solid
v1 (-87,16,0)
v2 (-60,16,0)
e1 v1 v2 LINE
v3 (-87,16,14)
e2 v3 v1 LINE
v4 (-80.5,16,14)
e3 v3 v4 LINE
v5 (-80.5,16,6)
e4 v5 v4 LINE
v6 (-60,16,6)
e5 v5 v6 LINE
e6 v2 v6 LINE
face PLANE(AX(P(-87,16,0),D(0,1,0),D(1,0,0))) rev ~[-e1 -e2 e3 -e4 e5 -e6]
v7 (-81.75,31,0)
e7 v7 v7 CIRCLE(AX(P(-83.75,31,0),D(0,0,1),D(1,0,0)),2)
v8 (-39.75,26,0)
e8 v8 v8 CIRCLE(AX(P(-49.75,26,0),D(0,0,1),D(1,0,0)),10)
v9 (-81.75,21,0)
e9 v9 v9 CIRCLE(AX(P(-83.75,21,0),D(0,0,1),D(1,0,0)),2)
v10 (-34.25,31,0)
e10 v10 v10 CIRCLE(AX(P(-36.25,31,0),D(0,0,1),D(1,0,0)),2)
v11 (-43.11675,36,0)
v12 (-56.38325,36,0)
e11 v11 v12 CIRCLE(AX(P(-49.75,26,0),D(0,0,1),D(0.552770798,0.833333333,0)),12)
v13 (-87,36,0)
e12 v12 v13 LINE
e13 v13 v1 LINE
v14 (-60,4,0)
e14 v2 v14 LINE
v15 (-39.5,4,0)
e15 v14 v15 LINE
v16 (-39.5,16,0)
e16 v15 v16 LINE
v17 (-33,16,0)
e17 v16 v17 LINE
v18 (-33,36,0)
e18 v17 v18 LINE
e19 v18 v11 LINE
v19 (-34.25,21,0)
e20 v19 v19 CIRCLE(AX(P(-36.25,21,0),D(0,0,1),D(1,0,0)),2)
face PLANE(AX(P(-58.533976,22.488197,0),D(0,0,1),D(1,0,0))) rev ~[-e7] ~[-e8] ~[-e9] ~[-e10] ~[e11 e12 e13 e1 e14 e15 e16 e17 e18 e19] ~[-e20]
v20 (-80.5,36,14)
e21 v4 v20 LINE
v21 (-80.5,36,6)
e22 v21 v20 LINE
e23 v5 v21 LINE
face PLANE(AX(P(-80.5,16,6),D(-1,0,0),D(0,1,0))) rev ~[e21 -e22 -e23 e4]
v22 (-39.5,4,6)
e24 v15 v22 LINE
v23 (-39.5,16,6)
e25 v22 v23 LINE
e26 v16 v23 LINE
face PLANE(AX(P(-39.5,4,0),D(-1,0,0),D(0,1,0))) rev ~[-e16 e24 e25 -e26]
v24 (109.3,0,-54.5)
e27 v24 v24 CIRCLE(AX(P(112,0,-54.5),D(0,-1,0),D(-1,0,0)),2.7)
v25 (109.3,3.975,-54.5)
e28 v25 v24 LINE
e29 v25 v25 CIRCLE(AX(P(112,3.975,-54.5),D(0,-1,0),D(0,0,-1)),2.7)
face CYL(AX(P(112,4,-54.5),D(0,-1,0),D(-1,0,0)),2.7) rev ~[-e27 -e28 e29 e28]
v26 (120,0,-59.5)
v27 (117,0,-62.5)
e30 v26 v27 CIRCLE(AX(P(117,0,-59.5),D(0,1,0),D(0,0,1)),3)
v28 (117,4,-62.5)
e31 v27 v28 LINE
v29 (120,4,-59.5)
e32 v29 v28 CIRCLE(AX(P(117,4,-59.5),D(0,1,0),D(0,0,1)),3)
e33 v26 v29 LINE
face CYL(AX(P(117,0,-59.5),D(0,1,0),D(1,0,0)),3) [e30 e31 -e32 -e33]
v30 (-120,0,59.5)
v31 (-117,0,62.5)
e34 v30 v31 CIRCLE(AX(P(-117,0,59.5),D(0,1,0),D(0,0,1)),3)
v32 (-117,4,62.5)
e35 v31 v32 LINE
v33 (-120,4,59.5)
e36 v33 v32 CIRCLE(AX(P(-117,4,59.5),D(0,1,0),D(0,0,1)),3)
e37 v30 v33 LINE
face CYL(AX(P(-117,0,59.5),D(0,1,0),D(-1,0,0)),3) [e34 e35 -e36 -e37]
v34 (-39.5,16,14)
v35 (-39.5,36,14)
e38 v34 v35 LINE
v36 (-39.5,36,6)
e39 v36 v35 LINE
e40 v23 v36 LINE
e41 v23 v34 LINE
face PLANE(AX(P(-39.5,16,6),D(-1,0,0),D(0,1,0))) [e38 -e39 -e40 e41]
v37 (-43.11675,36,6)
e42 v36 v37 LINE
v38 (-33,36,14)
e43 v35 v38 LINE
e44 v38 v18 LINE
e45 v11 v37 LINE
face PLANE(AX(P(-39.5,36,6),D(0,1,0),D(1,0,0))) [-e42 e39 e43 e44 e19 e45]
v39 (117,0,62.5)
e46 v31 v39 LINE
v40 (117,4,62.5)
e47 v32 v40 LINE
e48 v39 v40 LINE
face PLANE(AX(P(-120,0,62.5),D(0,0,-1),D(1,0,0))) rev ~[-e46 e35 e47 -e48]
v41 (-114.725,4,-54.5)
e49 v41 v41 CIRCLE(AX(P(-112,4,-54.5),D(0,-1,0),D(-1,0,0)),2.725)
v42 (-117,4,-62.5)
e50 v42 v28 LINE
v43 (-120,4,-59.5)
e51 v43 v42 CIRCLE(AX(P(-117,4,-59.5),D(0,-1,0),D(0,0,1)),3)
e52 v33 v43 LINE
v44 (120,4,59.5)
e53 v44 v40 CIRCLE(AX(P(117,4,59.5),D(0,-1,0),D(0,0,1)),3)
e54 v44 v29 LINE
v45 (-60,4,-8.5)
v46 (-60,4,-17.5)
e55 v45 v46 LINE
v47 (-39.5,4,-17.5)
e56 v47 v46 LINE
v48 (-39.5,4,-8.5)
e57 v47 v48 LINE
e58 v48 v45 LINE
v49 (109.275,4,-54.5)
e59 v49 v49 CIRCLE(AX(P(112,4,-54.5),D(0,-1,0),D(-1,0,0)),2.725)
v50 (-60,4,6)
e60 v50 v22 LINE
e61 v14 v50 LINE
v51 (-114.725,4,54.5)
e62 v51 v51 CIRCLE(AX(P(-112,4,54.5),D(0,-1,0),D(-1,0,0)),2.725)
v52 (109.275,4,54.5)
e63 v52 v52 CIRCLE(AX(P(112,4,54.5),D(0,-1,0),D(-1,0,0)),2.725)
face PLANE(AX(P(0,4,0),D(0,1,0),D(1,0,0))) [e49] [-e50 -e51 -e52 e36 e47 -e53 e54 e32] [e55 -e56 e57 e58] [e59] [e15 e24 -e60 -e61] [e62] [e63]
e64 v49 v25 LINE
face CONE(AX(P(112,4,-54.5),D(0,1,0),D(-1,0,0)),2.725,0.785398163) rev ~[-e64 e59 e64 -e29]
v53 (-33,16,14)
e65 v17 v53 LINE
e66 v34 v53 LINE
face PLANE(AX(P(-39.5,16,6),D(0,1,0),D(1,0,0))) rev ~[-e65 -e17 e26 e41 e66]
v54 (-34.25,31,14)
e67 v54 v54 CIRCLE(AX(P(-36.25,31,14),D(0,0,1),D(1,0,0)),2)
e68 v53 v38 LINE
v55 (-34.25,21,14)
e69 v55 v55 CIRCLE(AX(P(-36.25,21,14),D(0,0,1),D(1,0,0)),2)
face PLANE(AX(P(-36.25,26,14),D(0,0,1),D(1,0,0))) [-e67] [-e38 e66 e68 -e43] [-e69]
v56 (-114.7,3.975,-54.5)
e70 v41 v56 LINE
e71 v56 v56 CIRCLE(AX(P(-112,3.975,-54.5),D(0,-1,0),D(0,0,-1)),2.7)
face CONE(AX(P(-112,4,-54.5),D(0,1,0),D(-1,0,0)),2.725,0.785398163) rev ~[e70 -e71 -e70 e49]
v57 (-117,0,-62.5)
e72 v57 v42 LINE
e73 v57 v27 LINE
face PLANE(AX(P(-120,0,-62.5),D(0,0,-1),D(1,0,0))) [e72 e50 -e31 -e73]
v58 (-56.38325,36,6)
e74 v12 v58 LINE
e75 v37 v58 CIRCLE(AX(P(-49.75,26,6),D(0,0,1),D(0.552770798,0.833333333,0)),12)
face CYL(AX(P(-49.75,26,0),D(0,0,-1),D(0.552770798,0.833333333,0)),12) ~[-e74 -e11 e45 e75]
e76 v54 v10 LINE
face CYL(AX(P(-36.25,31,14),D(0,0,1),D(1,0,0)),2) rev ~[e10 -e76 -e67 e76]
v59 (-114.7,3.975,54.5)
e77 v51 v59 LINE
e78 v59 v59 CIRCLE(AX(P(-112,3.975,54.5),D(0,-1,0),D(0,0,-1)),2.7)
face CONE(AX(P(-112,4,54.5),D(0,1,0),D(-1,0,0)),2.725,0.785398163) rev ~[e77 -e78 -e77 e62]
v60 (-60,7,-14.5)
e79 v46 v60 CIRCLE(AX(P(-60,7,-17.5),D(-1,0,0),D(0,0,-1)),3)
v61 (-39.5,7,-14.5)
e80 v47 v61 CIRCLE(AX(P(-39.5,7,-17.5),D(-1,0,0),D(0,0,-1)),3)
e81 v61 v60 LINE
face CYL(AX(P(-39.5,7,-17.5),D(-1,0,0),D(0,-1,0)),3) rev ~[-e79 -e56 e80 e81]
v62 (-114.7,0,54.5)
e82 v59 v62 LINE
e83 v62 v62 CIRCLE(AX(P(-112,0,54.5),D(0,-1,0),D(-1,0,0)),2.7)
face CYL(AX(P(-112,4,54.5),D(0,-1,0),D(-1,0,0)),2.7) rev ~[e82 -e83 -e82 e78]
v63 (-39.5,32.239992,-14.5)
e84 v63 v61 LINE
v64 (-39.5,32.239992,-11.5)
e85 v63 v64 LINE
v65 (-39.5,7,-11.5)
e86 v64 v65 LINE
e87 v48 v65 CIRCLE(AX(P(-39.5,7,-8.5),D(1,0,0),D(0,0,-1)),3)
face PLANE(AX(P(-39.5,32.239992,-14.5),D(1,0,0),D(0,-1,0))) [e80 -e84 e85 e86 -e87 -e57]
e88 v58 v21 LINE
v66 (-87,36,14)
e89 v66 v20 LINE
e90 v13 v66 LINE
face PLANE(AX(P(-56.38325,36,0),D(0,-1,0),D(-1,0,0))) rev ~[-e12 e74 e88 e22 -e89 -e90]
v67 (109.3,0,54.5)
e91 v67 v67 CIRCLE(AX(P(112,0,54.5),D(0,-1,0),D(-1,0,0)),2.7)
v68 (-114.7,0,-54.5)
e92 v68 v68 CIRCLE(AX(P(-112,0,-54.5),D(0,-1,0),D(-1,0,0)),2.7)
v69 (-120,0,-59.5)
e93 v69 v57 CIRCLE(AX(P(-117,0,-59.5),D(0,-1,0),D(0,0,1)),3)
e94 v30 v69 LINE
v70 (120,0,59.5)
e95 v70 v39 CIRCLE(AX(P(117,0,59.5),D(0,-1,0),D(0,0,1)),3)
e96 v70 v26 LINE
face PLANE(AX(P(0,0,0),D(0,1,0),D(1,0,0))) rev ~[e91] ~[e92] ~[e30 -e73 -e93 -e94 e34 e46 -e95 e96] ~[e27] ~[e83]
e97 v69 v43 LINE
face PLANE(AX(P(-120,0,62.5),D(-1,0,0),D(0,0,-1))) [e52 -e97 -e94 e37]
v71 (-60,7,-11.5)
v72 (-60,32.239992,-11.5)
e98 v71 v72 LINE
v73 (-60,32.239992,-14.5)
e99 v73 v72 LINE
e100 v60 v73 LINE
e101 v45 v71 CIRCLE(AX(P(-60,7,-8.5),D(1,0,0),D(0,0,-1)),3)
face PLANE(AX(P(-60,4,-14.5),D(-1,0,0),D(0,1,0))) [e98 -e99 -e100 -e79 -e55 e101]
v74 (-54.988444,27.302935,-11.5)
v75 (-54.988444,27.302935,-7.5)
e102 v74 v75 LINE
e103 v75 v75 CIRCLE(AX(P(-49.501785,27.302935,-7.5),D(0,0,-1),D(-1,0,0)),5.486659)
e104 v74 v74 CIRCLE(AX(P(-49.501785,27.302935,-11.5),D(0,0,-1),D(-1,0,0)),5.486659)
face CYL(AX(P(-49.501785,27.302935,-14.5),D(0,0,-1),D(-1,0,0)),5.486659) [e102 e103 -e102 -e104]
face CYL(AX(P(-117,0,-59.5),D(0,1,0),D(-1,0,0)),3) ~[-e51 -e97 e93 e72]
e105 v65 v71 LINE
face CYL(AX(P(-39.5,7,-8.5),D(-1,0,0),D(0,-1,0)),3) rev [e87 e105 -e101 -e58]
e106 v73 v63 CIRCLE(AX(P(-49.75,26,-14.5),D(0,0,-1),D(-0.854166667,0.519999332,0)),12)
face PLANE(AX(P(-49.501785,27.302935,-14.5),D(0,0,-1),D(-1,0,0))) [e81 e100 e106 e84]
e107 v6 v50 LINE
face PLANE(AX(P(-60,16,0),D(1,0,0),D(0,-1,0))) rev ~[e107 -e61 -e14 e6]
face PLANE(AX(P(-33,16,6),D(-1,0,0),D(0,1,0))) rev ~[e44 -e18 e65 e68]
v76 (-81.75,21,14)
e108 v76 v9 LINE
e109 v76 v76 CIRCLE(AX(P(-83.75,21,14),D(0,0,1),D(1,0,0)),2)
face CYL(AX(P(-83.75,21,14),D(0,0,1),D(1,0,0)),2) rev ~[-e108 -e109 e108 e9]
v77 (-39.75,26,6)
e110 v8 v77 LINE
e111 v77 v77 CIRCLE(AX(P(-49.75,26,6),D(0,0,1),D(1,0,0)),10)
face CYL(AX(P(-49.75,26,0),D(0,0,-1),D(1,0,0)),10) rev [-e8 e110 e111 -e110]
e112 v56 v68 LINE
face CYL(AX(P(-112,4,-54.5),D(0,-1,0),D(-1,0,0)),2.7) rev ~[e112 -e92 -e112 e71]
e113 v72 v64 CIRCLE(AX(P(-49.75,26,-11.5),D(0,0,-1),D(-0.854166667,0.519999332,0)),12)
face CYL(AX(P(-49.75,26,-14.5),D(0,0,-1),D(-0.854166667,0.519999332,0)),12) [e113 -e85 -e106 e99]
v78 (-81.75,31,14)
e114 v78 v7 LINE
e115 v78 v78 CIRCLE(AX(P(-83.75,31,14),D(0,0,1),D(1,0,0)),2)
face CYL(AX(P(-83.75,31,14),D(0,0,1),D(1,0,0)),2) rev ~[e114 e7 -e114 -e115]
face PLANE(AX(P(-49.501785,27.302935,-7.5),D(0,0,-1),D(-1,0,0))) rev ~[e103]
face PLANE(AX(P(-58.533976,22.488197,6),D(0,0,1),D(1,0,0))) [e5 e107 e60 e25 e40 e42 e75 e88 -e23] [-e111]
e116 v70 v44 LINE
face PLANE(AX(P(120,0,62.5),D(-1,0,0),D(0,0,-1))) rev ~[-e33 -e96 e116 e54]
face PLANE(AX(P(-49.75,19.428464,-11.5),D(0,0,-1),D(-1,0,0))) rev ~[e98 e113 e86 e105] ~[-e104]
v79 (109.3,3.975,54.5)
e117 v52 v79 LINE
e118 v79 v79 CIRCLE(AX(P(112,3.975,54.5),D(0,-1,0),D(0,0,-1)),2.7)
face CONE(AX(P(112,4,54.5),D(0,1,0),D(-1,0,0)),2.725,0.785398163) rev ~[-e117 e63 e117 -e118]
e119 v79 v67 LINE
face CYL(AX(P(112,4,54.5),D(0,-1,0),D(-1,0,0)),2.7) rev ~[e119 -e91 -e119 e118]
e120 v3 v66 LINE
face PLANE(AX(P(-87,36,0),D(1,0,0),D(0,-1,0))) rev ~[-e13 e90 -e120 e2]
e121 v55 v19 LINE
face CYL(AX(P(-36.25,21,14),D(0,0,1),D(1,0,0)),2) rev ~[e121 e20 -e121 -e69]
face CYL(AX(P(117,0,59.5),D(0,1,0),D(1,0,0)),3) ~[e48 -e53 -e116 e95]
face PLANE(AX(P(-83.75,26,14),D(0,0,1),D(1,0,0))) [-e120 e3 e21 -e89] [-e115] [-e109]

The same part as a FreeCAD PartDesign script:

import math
import FreeCAD as App
import Part
import Sketcher


def edges_at(feature, points):
    """Names of the edges that pass closest to the given points."""
    edges = feature.Shape.Edges
    near = lambda p: min(range(len(edges)), key=lambda i: edges[i].distToShape(Part.Vertex(*p))[0])
    return sorted({f"Edge{near(p) + 1}" for p in points})

doc = App.newDocument("Part")
body = doc.addObject("PartDesign::Body", "Body")

sketch1 = body.newObject("Sketcher::SketchObject", "Sketch")
sketch1.AttachmentSupport = (doc.getObject("XZ_Plane"), [""])
sketch1.MapMode = "FlatFace"
sketch1.addGeometry([
    Part.LineSegment(App.Vector(-120, -62, 0), App.Vector(-120, 62, 0)),
    Part.LineSegment(App.Vector(-120, 62, 0), App.Vector(120, 62, 0)),
    Part.LineSegment(App.Vector(120, 62, 0), App.Vector(120, -62, 0)),
    Part.LineSegment(App.Vector(120, -62, 0), App.Vector(-120, -62, 0)),
], False)
sketch1.addConstraint([
    Sketcher.Constraint("Coincident", 0, 2, 1, 1),
    Sketcher.Constraint("Coincident", 1, 2, 2, 1),
    Sketcher.Constraint("Coincident", 2, 2, 3, 1),
    Sketcher.Constraint("Coincident", 3, 2, 0, 1),
    Sketcher.Constraint("Vertical", 0),
    Sketcher.Constraint("Horizontal", 1),
    Sketcher.Constraint("Vertical", 2),
    Sketcher.Constraint("Horizontal", 3),
    Sketcher.Constraint("Symmetric", 0, 2, 2, 2, -1, 1),
    Sketcher.Constraint("DistanceX", 1, 1, 1, 2, 240.0),
    Sketcher.Constraint("DistanceY", 0, 1, 0, 2, 125.0),
])
pad1 = body.newObject("PartDesign::Pad", "Pad")
pad1.Profile = sketch1
pad1.Length = 4
pad1.Reversed = True

sketch2 = body.newObject("Sketcher::SketchObject", "Sketch001")
sketch2.AttachmentSupport = (doc.getObject("XZ_Plane"), [""])
sketch2.MapMode = "FlatFace"
sketch2.AttachmentOffset = App.Placement(App.Vector(0, 0, -4), App.Rotation())
sketch2.addGeometry([
    Part.Circle(App.Vector(112, -54.5, 0), App.Vector(0, 0, 1), 2.7),
    Part.Circle(App.Vector(-112, -54.5, 0), App.Vector(0, 0, 1), 2.7),
    Part.Circle(App.Vector(-112, 54.5, 0), App.Vector(0, 0, 1), 2.7),
    Part.Circle(App.Vector(112, 54.5, 0), App.Vector(0, 0, 1), 2.7),
], False)
sketch2.addConstraint([
    Sketcher.Constraint("Equal", 0, 1),
    Sketcher.Constraint("Equal", 1, 2),
    Sketcher.Constraint("Equal", 2, 3),
    Sketcher.Constraint("Symmetric", 0, 3, 2, 3, -1, 1),
    Sketcher.Constraint("Symmetric", 1, 3, 3, 3, -1, 1),
    Sketcher.Constraint("Symmetric", 0, 3, 1, 3, -2),
    Sketcher.Constraint("Diameter", 0, 5.4),
    Sketcher.Constraint("DistanceX", -1, 1, 0, 3, 112.0),
    Sketcher.Constraint("DistanceY", 1, 3, 2, 3, 109.0),
])
doc.recompute()
hole = body.newObject("PartDesign::Hole", "Hole")
hole.Profile = sketch2
hole.ThreadType = "None"
hole.Diameter = 5.4
hole.DepthType = "ThroughAll"
hole.HoleCutType = "Countersink"
hole.HoleCutDiameter = 5.45
hole.HoleCutCountersinkAngle = 90
hole.Reversed = True
doc.recompute()

fillet = body.newObject("PartDesign::Fillet", "Fillet")
fillet.Base = (hole, edges_at(hole, [
    (120, 2, 62.5),
    (-120, 2, 62.5),
    (-120, 2, -62.5),
    (120, 2, -62.5),
]))
fillet.Radius = 3

sketch3 = body.newObject("Sketcher::SketchObject", "Sketch002")
sketch3.AttachmentSupport = (doc.getObject("XY_Plane"), [""])
sketch3.MapMode = "FlatFace"
sketch3.addGeometry([
    Part.LineSegment(App.Vector(-60, 4, 0), App.Vector(-40, 4, 0)),
    Part.LineSegment(App.Vector(-40, 4, 0), App.Vector(-40, 16, 0)),
    Part.LineSegment(App.Vector(-40, 16, 0), App.Vector(-33, 16, 0)),
    Part.LineSegment(App.Vector(-33, 16, 0), App.Vector(-33, 36, 0)),
    Part.LineSegment(App.Vector(-33, 36, 0), App.Vector(-43, 36, 0)),
    Part.ArcOfCircle(Part.Circle(App.Vector(-50, 26, 0), App.Vector(0, 0, 1), 12), math.radians(56), math.radians(124)),
    Part.LineSegment(App.Vector(-56, 36, 0), App.Vector(-87, 36, 0)),
    Part.LineSegment(App.Vector(-87, 36, 0), App.Vector(-87, 16, 0)),
    Part.LineSegment(App.Vector(-87, 16, 0), App.Vector(-60, 16, 0)),
    Part.LineSegment(App.Vector(-60, 16, 0), App.Vector(-60, 4, 0)),
    Part.Circle(App.Vector(-50, 26, 0), App.Vector(0, 0, 1), 10),
], False)
sketch3.addConstraint([
    Sketcher.Constraint("Coincident", 0, 2, 1, 1),
    Sketcher.Constraint("Coincident", 1, 2, 2, 1),
    Sketcher.Constraint("Coincident", 2, 2, 3, 1),
    Sketcher.Constraint("Coincident", 3, 2, 4, 1),
    Sketcher.Constraint("Coincident", 4, 2, 5, 1),
    Sketcher.Constraint("Coincident", 5, 2, 6, 1),
    Sketcher.Constraint("Coincident", 6, 2, 7, 1),
    Sketcher.Constraint("Coincident", 7, 2, 8, 1),
    Sketcher.Constraint("Coincident", 8, 2, 9, 1),
    Sketcher.Constraint("Coincident", 9, 2, 0, 1),
    Sketcher.Constraint("Horizontal", 0),
    Sketcher.Constraint("Vertical", 1),
    Sketcher.Constraint("Horizontal", 2),
    Sketcher.Constraint("Vertical", 3),
    Sketcher.Constraint("Horizontal", 4),
    Sketcher.Constraint("Horizontal", 6),
    Sketcher.Constraint("Vertical", 7),
    Sketcher.Constraint("Horizontal", 8),
    Sketcher.Constraint("Vertical", 9),
    Sketcher.Constraint("Coincident", 10, 3, 5, 3),
    Sketcher.Constraint("Horizontal", 4, 2, 5, 2),
    Sketcher.Constraint("Horizontal", 2, 2, 7, 2),
    Sketcher.Constraint("Diameter", 10, 20.0),
    Sketcher.Constraint("Radius", 5, 12.0),
    Sketcher.Constraint("DistanceX", 8, 1, 8, 2, 27.0),
    Sketcher.Constraint("DistanceY", 1, 1, 1, 2, 12.0),
    Sketcher.Constraint("DistanceY", 3, 1, 3, 2, 20.0),
    Sketcher.Constraint("DistanceX", 0, 1, 0, 2, 20.5),
    Sketcher.Constraint("DistanceX", 2, 1, 2, 2, 6.5),
    Sketcher.Constraint("DistanceY", -1, 1, 5, 3, 26.0),
    Sketcher.Constraint("DistanceY", -1, 1, 0, 2, 4.0),
    Sketcher.Constraint("DistanceX", 2, 2, -1, 1, 33.0),
    Sketcher.Constraint("DistanceX", 5, 3, -1, 1, 49.75),
])
pad2 = body.newObject("PartDesign::Pad", "Pad001")
pad2.Profile = sketch3
pad2.Length = 6

sketch4 = body.newObject("Sketcher::SketchObject", "Sketch003")
sketch4.AttachmentSupport = (doc.getObject("XY_Plane"), [""])
sketch4.MapMode = "FlatFace"
sketch4.AttachmentOffset = App.Placement(App.Vector(0, 0, -14.5), App.Rotation())
sketch4.addGeometry([
    Part.LineSegment(App.Vector(-40, 4, 0), App.Vector(-60, 4, 0)),
    Part.LineSegment(App.Vector(-60, 4, 0), App.Vector(-60, 32, 0)),
    Part.ArcOfCircle(Part.Circle(App.Vector(-50, 26, 0), App.Vector(0, 0, 1), 12), math.radians(31), math.radians(149)),
    Part.LineSegment(App.Vector(-40, 32, 0), App.Vector(-40, 4, 0)),
], False)
sketch4.addConstraint([
    Sketcher.Constraint("Coincident", 0, 2, 1, 1),
    Sketcher.Constraint("Coincident", 1, 2, 2, 2),
    Sketcher.Constraint("Coincident", 2, 1, 3, 1),
    Sketcher.Constraint("Coincident", 3, 2, 0, 1),
    Sketcher.Constraint("Horizontal", 0),
    Sketcher.Constraint("Vertical", 1),
    Sketcher.Constraint("Vertical", 3),
    Sketcher.Constraint("Horizontal", 1, 2, 2, 1),
    Sketcher.Constraint("Radius", 2, 12.0),
    Sketcher.Constraint("DistanceX", 0, 2, 0, 1, 20.5),
    Sketcher.Constraint("DistanceY", -1, 1, 2, 3, 26.0),
    Sketcher.Constraint("DistanceX", 0, 2, -1, 1, 60.0),
    Sketcher.Constraint("DistanceY", -1, 1, 0, 2, 4.0),
])
pad3 = body.newObject("PartDesign::Pad", "Pad002")
pad3.Profile = sketch4
pad3.Length = 3
doc.recompute()

fillet2 = body.newObject("PartDesign::Fillet", "Fillet001")
fillet2.Base = (pad3, edges_at(pad3, [(-49.75, 4, -11.5), (-49.75, 4, -14.5)]))
fillet2.Radius = 3

sketch5 = body.newObject("Sketcher::SketchObject", "Sketch004")
sketch5.AttachmentSupport = (doc.getObject("XY_Plane"), [""])
sketch5.MapMode = "FlatFace"
sketch5.AttachmentOffset = App.Placement(App.Vector(0, 0, 6), App.Rotation())
sketch5.addGeometry([
    Part.LineSegment(App.Vector(-40, 36, 0), App.Vector(-40, 16, 0)),
    Part.LineSegment(App.Vector(-40, 16, 0), App.Vector(-33, 16, 0)),
    Part.LineSegment(App.Vector(-33, 16, 0), App.Vector(-33, 36, 0)),
    Part.LineSegment(App.Vector(-33, 36, 0), App.Vector(-40, 36, 0)),
    Part.LineSegment(App.Vector(-87, 36, 0), App.Vector(-87, 16, 0)),
    Part.LineSegment(App.Vector(-87, 16, 0), App.Vector(-80, 16, 0)),
    Part.LineSegment(App.Vector(-80, 16, 0), App.Vector(-80, 36, 0)),
    Part.LineSegment(App.Vector(-80, 36, 0), App.Vector(-87, 36, 0)),
], False)
sketch5.addConstraint([
    Sketcher.Constraint("Coincident", 0, 2, 1, 1),
    Sketcher.Constraint("Coincident", 1, 2, 2, 1),
    Sketcher.Constraint("Coincident", 2, 2, 3, 1),
    Sketcher.Constraint("Coincident", 3, 2, 0, 1),
    Sketcher.Constraint("Coincident", 4, 2, 5, 1),
    Sketcher.Constraint("Coincident", 5, 2, 6, 1),
    Sketcher.Constraint("Coincident", 6, 2, 7, 1),
    Sketcher.Constraint("Coincident", 7, 2, 4, 1),
    Sketcher.Constraint("Vertical", 0),
    Sketcher.Constraint("Horizontal", 1),
    Sketcher.Constraint("Vertical", 2),
    Sketcher.Constraint("Horizontal", 3),
    Sketcher.Constraint("Vertical", 4),
    Sketcher.Constraint("Horizontal", 5),
    Sketcher.Constraint("Vertical", 6),
    Sketcher.Constraint("Horizontal", 7),
    Sketcher.Constraint("Horizontal", 1, 2, 4, 2),
    Sketcher.Constraint("Horizontal", 3, 2, 6, 2),
    Sketcher.Constraint("Equal", 3, 5),
    Sketcher.Constraint("DistanceY", 0, 2, 0, 1, 20.0),
    Sketcher.Constraint("DistanceX", 1, 1, 1, 2, 6.5),
    Sketcher.Constraint("DistanceY", -1, 1, 0, 2, 16.0),
    Sketcher.Constraint("DistanceX", 1, 2, -1, 1, 33.0),
    Sketcher.Constraint("DistanceX", 4, 2, -1, 1, 87.0),
])
pad4 = body.newObject("PartDesign::Pad", "Pad003")
pad4.Profile = sketch5
pad4.Length = 8

sketch6 = body.newObject("Sketcher::SketchObject", "Sketch005")
sketch6.AttachmentSupport = (doc.getObject("XY_Plane"), [""])
sketch6.MapMode = "FlatFace"
sketch6.AttachmentOffset = App.Placement(App.Vector(0, 0, 14), App.Rotation())
sketch6.addGeometry([
    Part.Circle(App.Vector(-83.8, 31, 0), App.Vector(0, 0, 1), 2),
    Part.Circle(App.Vector(-83.8, 21, 0), App.Vector(0, 0, 1), 2),
    Part.Circle(App.Vector(-36.2, 21, 0), App.Vector(0, 0, 1), 2),
    Part.Circle(App.Vector(-36.2, 31, 0), App.Vector(0, 0, 1), 2),
], False)
sketch6.addConstraint([
    Sketcher.Constraint("Equal", 0, 1),
    Sketcher.Constraint("Equal", 1, 2),
    Sketcher.Constraint("Equal", 2, 3),
    Sketcher.Constraint("Horizontal", 1, 3, 2, 3),
    Sketcher.Constraint("Horizontal", 0, 3, 3, 3),
    Sketcher.Constraint("Vertical", 0, 3, 1, 3),
    Sketcher.Constraint("Vertical", 2, 3, 3, 3),
    Sketcher.Constraint("Diameter", 0, 4.0),
    Sketcher.Constraint("DistanceY", -1, 1, 0, 3, 31.0),
    Sketcher.Constraint("DistanceY", -1, 1, 1, 3, 21.0),
    Sketcher.Constraint("DistanceX", 1, 3, 2, 3, 47.5),
    Sketcher.Constraint("DistanceX", 0, 3, -1, 1, 83.75),
])
pocket1 = body.newObject("PartDesign::Pocket", "Pocket")
pocket1.Profile = sketch6
pocket1.Type = "ThroughAll"

sketch7 = body.newObject("Sketcher::SketchObject", "Sketch006")
sketch7.AttachmentSupport = (doc.getObject("XY_Plane"), [""])
sketch7.MapMode = "FlatFace"
sketch7.AttachmentOffset = App.Placement(App.Vector(0, 0, -14.5), App.Rotation())
sketch7.addGeometry(Part.Circle(App.Vector(-50, 27, 0), App.Vector(0, 0, 1), 5), False)
sketch7.addConstraint([
    Sketcher.Constraint("Diameter", 0, 10.973318),
    Sketcher.Constraint("DistanceX", 0, 3, -1, 1, 49.501785),
    Sketcher.Constraint("DistanceY", -1, 1, 0, 3, 27.302935),
])
pad5 = body.newObject("PartDesign::Pad", "Pad004")
pad5.Profile = sketch7
pad5.Length = 7

doc.recompute()
